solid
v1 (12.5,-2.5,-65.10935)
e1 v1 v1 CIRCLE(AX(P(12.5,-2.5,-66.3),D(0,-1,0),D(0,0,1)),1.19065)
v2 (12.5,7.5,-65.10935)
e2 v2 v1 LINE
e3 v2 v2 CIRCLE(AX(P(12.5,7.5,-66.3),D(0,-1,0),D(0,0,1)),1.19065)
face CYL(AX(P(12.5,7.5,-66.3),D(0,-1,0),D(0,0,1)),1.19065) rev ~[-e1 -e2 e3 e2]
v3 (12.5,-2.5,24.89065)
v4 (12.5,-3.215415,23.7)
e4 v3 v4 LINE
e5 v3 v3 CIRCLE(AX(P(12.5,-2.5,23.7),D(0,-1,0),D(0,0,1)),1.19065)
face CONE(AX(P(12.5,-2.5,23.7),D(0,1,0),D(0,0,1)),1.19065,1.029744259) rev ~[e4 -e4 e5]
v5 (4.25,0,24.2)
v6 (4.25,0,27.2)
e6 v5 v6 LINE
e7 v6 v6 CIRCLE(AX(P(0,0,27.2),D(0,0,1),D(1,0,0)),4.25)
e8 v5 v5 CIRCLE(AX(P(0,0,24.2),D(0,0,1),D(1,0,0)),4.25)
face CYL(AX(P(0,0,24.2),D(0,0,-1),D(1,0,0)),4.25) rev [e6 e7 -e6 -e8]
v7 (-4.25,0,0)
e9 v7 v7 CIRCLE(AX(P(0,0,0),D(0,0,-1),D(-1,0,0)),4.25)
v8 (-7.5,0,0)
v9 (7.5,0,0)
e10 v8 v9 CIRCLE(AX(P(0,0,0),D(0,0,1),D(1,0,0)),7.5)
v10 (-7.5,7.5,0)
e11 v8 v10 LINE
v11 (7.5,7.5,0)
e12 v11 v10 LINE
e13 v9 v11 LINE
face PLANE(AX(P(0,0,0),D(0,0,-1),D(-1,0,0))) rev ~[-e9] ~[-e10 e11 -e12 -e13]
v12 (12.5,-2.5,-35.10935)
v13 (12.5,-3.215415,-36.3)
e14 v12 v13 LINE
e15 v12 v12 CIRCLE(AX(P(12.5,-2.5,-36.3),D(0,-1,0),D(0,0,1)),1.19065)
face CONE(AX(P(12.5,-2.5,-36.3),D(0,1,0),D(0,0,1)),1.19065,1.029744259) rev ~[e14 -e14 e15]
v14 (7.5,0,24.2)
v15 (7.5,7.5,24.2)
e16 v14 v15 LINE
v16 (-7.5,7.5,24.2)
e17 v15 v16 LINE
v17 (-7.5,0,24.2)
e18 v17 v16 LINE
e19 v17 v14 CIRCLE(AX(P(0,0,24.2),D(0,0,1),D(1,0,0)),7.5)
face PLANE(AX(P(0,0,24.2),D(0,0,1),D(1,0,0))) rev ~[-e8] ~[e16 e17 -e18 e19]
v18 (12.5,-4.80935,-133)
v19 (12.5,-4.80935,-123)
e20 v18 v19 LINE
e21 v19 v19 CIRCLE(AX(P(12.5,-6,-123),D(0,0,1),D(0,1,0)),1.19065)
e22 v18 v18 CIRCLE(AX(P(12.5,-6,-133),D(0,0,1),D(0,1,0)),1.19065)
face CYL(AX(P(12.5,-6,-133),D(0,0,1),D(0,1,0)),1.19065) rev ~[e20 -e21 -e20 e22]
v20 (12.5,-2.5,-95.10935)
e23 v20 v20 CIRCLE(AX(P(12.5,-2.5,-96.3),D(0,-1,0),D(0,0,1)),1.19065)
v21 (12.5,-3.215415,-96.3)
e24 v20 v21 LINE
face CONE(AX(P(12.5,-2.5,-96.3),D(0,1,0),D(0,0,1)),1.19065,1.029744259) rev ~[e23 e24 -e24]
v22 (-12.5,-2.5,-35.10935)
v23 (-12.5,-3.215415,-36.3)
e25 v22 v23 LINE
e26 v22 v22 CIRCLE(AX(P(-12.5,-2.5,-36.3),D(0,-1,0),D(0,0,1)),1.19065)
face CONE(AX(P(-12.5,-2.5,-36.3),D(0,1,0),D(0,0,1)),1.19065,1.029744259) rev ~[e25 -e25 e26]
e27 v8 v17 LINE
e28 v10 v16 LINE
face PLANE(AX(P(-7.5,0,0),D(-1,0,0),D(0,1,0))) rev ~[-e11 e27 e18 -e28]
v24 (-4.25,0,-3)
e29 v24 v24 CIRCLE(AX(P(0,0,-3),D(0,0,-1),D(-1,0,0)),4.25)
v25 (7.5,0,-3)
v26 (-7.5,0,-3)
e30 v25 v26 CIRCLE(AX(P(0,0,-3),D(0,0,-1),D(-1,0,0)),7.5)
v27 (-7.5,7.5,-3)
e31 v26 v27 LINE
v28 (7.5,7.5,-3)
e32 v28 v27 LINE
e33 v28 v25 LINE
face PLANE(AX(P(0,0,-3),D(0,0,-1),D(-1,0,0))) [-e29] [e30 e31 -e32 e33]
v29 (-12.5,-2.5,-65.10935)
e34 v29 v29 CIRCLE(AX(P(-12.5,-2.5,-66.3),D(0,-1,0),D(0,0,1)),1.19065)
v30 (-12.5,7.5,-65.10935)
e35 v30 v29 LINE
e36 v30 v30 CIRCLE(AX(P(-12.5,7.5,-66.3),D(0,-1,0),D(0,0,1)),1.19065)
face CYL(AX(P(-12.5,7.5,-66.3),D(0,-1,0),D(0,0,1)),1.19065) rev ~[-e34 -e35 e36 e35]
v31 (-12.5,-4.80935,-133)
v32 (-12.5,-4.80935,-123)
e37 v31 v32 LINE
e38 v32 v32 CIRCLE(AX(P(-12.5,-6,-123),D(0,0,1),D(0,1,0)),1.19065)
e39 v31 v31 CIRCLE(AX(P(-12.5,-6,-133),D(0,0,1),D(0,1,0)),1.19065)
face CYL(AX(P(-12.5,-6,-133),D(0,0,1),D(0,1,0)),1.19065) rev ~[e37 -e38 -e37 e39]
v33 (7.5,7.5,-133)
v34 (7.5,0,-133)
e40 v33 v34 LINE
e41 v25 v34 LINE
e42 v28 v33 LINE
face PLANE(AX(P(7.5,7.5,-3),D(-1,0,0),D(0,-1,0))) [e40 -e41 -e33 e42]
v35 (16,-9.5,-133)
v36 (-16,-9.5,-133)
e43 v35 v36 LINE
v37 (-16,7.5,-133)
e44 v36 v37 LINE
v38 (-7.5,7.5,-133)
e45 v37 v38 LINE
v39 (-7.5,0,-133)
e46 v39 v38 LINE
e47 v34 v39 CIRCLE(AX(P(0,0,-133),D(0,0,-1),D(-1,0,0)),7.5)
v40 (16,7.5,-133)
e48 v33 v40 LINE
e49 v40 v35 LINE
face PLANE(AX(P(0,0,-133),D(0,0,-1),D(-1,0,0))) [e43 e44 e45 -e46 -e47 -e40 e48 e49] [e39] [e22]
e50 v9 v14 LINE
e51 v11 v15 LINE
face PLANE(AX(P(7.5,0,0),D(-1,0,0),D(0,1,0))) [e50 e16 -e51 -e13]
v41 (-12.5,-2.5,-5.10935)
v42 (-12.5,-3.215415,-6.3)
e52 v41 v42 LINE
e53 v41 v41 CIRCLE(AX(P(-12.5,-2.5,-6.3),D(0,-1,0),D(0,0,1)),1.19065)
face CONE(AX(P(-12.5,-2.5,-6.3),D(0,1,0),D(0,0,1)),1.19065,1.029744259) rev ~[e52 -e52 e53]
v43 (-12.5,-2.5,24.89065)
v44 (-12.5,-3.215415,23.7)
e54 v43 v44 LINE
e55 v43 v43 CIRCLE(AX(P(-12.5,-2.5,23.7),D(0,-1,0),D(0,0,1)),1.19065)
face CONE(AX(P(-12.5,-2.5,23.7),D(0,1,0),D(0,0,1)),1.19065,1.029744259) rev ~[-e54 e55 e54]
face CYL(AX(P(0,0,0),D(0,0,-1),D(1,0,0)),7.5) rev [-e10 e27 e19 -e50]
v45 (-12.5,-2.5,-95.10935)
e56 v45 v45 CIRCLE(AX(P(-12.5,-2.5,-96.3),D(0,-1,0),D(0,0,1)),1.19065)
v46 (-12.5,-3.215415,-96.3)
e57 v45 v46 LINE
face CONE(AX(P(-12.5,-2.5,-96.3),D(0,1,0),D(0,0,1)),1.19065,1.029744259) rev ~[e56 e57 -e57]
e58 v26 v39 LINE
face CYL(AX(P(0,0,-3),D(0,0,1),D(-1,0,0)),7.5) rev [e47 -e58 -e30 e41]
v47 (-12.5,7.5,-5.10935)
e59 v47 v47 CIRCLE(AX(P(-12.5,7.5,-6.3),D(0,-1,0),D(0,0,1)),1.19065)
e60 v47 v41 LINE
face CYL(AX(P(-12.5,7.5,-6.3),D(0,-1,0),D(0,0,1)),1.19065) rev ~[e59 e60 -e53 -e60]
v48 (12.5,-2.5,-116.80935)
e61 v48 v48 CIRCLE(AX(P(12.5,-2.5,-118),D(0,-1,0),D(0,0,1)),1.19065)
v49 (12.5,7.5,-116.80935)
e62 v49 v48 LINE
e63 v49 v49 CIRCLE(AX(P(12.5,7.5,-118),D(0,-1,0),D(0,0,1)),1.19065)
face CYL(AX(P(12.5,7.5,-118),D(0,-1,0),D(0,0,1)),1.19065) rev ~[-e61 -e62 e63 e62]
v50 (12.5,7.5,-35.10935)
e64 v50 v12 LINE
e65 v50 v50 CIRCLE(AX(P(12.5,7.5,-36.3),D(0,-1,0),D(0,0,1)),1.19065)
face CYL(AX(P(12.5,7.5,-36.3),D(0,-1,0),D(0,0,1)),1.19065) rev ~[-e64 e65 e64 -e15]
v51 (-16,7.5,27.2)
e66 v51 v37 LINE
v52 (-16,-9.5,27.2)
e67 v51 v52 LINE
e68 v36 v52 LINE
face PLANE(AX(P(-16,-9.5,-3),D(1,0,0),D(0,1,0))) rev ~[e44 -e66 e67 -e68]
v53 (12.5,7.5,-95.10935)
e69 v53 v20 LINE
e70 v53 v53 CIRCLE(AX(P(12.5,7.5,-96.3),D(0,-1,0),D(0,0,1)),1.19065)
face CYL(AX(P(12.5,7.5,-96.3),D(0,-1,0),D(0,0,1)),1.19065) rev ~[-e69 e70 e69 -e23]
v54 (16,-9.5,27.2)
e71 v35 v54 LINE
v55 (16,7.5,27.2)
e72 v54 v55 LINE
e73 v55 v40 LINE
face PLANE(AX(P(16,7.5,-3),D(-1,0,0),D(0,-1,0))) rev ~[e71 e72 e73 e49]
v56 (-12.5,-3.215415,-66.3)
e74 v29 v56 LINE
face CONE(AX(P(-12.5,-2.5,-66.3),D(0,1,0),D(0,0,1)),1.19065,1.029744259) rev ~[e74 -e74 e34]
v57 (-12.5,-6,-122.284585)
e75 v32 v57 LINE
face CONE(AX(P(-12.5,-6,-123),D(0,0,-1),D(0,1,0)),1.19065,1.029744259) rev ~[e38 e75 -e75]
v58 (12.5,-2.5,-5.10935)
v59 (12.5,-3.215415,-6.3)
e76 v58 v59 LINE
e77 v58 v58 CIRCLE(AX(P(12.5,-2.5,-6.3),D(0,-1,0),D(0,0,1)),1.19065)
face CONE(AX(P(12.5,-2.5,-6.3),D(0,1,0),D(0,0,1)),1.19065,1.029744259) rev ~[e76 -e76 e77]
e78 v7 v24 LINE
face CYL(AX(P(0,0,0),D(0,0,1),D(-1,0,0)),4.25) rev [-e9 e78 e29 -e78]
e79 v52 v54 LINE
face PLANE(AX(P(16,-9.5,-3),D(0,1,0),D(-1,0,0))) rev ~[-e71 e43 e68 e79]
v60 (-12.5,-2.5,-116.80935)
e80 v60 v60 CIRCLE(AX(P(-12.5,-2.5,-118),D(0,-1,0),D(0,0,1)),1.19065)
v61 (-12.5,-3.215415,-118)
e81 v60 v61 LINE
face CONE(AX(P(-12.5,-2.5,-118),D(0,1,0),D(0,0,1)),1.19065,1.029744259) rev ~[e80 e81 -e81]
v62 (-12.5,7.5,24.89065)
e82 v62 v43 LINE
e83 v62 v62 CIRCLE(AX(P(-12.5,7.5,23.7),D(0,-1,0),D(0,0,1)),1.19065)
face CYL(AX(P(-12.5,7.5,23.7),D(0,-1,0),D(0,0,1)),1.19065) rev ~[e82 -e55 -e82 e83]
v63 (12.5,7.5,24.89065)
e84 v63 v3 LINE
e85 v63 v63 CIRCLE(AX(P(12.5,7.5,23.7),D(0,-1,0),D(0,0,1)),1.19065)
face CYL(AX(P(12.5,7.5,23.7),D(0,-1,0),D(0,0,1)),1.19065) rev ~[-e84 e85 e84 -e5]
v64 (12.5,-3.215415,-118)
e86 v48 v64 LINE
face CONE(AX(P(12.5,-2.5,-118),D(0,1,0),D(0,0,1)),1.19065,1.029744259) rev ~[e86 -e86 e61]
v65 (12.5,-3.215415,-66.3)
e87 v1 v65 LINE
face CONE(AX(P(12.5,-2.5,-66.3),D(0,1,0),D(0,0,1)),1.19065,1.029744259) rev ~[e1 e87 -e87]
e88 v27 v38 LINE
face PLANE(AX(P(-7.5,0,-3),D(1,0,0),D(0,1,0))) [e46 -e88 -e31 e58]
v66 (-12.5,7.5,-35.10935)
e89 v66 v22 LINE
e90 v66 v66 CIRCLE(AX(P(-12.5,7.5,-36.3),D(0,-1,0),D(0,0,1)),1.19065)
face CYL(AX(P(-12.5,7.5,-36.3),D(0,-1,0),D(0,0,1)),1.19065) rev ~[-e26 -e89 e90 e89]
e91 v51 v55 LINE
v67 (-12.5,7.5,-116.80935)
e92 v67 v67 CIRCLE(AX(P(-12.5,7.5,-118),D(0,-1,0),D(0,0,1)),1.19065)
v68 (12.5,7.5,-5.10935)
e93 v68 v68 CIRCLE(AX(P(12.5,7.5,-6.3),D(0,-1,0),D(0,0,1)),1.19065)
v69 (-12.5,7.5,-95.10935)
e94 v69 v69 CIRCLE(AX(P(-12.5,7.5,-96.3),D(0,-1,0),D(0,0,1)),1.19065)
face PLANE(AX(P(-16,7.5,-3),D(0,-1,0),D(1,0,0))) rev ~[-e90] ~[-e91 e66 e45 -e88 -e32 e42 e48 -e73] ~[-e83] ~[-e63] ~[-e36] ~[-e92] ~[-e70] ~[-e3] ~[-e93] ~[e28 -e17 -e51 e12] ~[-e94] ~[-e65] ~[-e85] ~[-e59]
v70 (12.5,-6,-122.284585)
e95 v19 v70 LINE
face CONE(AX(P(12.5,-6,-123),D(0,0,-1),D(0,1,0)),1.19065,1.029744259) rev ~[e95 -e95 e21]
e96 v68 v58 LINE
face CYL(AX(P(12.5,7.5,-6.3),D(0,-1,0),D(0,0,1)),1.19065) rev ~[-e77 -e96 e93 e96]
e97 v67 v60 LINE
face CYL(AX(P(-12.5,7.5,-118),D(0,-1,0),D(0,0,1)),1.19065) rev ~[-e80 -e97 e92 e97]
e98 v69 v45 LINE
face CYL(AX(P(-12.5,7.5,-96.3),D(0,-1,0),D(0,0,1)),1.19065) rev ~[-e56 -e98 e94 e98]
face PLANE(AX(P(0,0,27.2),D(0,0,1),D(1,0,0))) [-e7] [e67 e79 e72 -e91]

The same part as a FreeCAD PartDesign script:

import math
import FreeCAD as App
import Part
import Sketcher
Q = App.Units.Quantity


def add_polygon(sketch, points):
    """Adds a closed chain of lines whose ends are joined by coincident constraints."""
    first, n = sketch.GeometryCount, len(points)
    for a, b in zip(points, points[1:] + points[:1]):
        sketch.addGeometry(Part.LineSegment(App.Vector(*a, 0), App.Vector(*b, 0)), False)
    for i in range(n):
        sketch.addConstraint(Sketcher.Constraint("Coincident", first + i, 2, first + (i + 1) % n, 1))

doc = App.newDocument("Part")
body = doc.addObject("PartDesign::Body", "Body")

# Sketch on XY plane
sketch1 = doc.addObject("Sketcher::SketchObject", "Sketch")
body.addObject(sketch1)
sketch1.AttachmentSupport = (doc.XY_Plane, [""])
sketch1.MapMode = "FlatFace"
sketch1.addGeometry([
    Part.ArcOfCircle(Part.Circle(App.Vector(0, 0, 0), App.Vector(0, 0, 1), 8), math.radians(180), math.radians(360)),  # 0
    Part.LineSegment(App.Vector(-8, 0, 0), App.Vector(-8, 8, 0)),  # 1
    Part.LineSegment(App.Vector(-8, 8, 0), App.Vector(-16, 8, 0)),  # 2
    Part.LineSegment(App.Vector(-16, 8, 0), App.Vector(-16, -10, 0)),  # 3
    Part.LineSegment(App.Vector(-16, -10, 0), App.Vector(16, -10, 0)),  # 4
    Part.LineSegment(App.Vector(16, -10, 0), App.Vector(16, 8, 0)),  # 5
    Part.LineSegment(App.Vector(16, 8, 0), App.Vector(8, 8, 0)),  # 6
    Part.LineSegment(App.Vector(8, 8, 0), App.Vector(8, 0, 0)),  # 7
], False)
sketch1.addConstraint([
    Sketcher.Constraint("Tangent", 0, 1, 1, 1),
    Sketcher.Constraint("Coincident", 1, 2, 2, 1),
    Sketcher.Constraint("Coincident", 2, 2, 3, 1),
    Sketcher.Constraint("Coincident", 3, 2, 4, 1),
    Sketcher.Constraint("Coincident", 4, 2, 5, 1),
    Sketcher.Constraint("Coincident", 5, 2, 6, 1),
    Sketcher.Constraint("Coincident", 6, 2, 7, 1),
    Sketcher.Constraint("Tangent", 7, 2, 0, 2),
    Sketcher.Constraint("Vertical", 1),
    Sketcher.Constraint("Horizontal", 2),
    Sketcher.Constraint("Vertical", 3),
    Sketcher.Constraint("Horizontal", 4),
    Sketcher.Constraint("Vertical", 5),
    Sketcher.Constraint("Horizontal", 6),
    Sketcher.Constraint("Vertical", 7),
    Sketcher.Constraint("Coincident", 0, 3, -1, 1),
    Sketcher.Constraint("Symmetric", 2, 2, 5, 2, -2),
    Sketcher.Constraint("Radius", 0, Q("7.5 mm")),
    Sketcher.Constraint("DistanceX", 4, 1, 4, 2, Q("32 mm")),
    Sketcher.Constraint("DistanceY", 3, 2, 3, 1, Q("17 mm")),
    Sketcher.Constraint("DistanceY", 1, 1, 1, 2, Q("7.5 mm")),
])
pad1 = doc.addObject("PartDesign::Pad", "Pad")
body.addObject(pad1)
pad1.Profile = sketch1
pad1.Length = 24.2

# Sketch on XY plane
sketch2 = doc.addObject("Sketcher::SketchObject", "Sketch001")
body.addObject(sketch2)
sketch2.AttachmentSupport = (doc.XY_Plane, [""])
sketch2.MapMode = "FlatFace"
sketch2.AttachmentOffset = App.Placement(App.Vector(0, 0, 24.2), App.Rotation())
add_polygon(sketch2, [(-16, 7.5), (-16, -9.5), (16, -9.5), (16, 7.5)])  # lines 0-3
sketch2.addGeometry(Part.Circle(App.Vector(0, 0, 0), App.Vector(0, 0, 1), 4.2), False)  # 4
sketch2.addConstraint([
    Sketcher.Constraint("Vertical", 0),
    Sketcher.Constraint("Horizontal", 1),
    Sketcher.Constraint("Vertical", 2),
    Sketcher.Constraint("Horizontal", 3),
    Sketcher.Constraint("Coincident", 4, 3, -1, 1),
    Sketcher.Constraint("Diameter", 4, Q("8.5 mm")),
    Sketcher.Constraint("DistanceX", 1, 1, 1, 2, Q("32 mm")),
    Sketcher.Constraint("DistanceY", 0, 2, 0, 1, Q("17 mm")),
    Sketcher.Constraint("DistanceX", 0, 2, -1, 1, Q("16 mm")),
    Sketcher.Constraint("DistanceY", 0, 2, -1, 1, Q("9.5 mm")),
])
pad2 = doc.addObject("PartDesign::Pad", "Pad001")
body.addObject(pad2)
pad2.Profile = sketch2
pad2.Length = 3

# Sketch on XY plane
sketch3 = doc.addObject("Sketcher::SketchObject", "Sketch002")
body.addObject(sketch3)
sketch3.AttachmentSupport = (doc.XY_Plane, [""])
sketch3.MapMode = "FlatFace"
add_polygon(sketch3, [(-16, 7.5), (16, 7.5), (16, -9.5), (-16, -9.5)])  # lines 0-3
sketch3.addGeometry(Part.Circle(App.Vector(0, 0, 0), App.Vector(0, 0, 1), 4.2), False)  # 4
sketch3.addConstraint([
    Sketcher.Constraint("Horizontal", 0),
    Sketcher.Constraint("Vertical", 1),
    Sketcher.Constraint("Horizontal", 2),
    Sketcher.Constraint("Vertical", 3),
    Sketcher.Constraint("Coincident", 4, 3, -1, 1),
    Sketcher.Constraint("Diameter", 4, Q("8.5 mm")),
    Sketcher.Constraint("DistanceX", 0, 1, 0, 2, Q("32 mm")),
    Sketcher.Constraint("DistanceY", 1, 2, 1, 1, Q("17 mm")),
    Sketcher.Constraint("DistanceX", -1, 1, 0, 2, Q("16 mm")),
    Sketcher.Constraint("DistanceY", -1, 1, 0, 2, Q("7.5 mm")),
])
pad3 = doc.addObject("PartDesign::Pad", "Pad002")
body.addObject(pad3)
pad3.Profile = sketch3
pad3.Length = 3
pad3.Reversed = True

# Sketch on XY plane
sketch4 = doc.addObject("Sketcher::SketchObject", "Sketch003")
body.addObject(sketch4)
sketch4.AttachmentSupport = (doc.XY_Plane, [""])
sketch4.MapMode = "FlatFace"
sketch4.AttachmentOffset = App.Placement(App.Vector(0, 0, -3), App.Rotation())
sketch4.addGeometry([
    Part.LineSegment(App.Vector(-16, -10, 0), App.Vector(-16, 8, 0)),  # 0
    Part.LineSegment(App.Vector(-16, 8, 0), App.Vector(-8, 8, 0)),  # 1
    Part.LineSegment(App.Vector(-8, 8, 0), App.Vector(-8, 0, 0)),  # 2
    Part.ArcOfCircle(Part.Circle(App.Vector(0, 0, 0), App.Vector(0, 0, 1), 8), math.radians(180), math.radians(360)),  # 3
    Part.LineSegment(App.Vector(8, 0, 0), App.Vector(8, 8, 0)),  # 4
    Part.LineSegment(App.Vector(8, 8, 0), App.Vector(16, 8, 0)),  # 5
    Part.LineSegment(App.Vector(16, 8, 0), App.Vector(16, -10, 0)),  # 6
    Part.LineSegment(App.Vector(16, -10, 0), App.Vector(-16, -10, 0)),  # 7
], False)
sketch4.addConstraint([
    Sketcher.Constraint("Coincident", 0, 2, 1, 1),
    Sketcher.Constraint("Coincident", 1, 2, 2, 1),
    Sketcher.Constraint("Tangent", 2, 2, 3, 1),
    Sketcher.Constraint("Tangent", 3, 2, 4, 1),
    Sketcher.Constraint("Coincident", 4, 2, 5, 1),
    Sketcher.Constraint("Coincident", 5, 2, 6, 1),
    Sketcher.Constraint("Coincident", 6, 2, 7, 1),
    Sketcher.Constraint("Coincident", 7, 2, 0, 1),
    Sketcher.Constraint("Vertical", 0),
    Sketcher.Constraint("Horizontal", 1),
    Sketcher.Constraint("Vertical", 2),
    Sketcher.Constraint("Vertical", 4),
    Sketcher.Constraint("Horizontal", 5),
    Sketcher.Constraint("Vertical", 6),
    Sketcher.Constraint("Horizontal", 7),
    Sketcher.Constraint("Coincident", 3, 3, -1, 1),
    Sketcher.Constraint("Symmetric", 0, 2, 5, 2, -2),
    Sketcher.Constraint("Radius", 3, Q("7.5 mm")),
    Sketcher.Constraint("DistanceX", 7, 2, 7, 1, Q("32 mm")),
    Sketcher.Constraint("DistanceY", 0, 1, 0, 2, Q("17 mm")),
    Sketcher.Constraint("DistanceY", 2, 2, 2, 1, Q("7.5 mm")),
])
pad4 = doc.addObject("PartDesign::Pad", "Pad003")
body.addObject(pad4)
pad4.Profile = sketch4
pad4.Length = 130
pad4.Reversed = True

# Sketch on XY plane
sketch5 = doc.addObject("Sketcher::SketchObject", "Sketch004")
body.addObject(sketch5)
sketch5.AttachmentSupport = (doc.XY_Plane, [""])
sketch5.MapMode = "FlatFace"
sketch5.AttachmentOffset = App.Placement(App.Vector(0, 0, -133), App.Rotation())
sketch5.addGeometry([
    Part.Circle(App.Vector(12.5, -6, 0), App.Vector(0, 0, 1), 1.2),
    Part.Circle(App.Vector(-12.5, -6, 0), App.Vector(0, 0, 1), 1.2),
], False)
sketch5.addConstraint([
    Sketcher.Constraint("Equal", 0, 1),
    Sketcher.Constraint("Symmetric", 0, 3, 1, 3, -2),
    Sketcher.Constraint("DistanceY", 0, 3, -1, 1, Q("6 mm")),
    Sketcher.Constraint("DistanceX", 1, 3, 0, 3, Q("25 mm")),
    Sketcher.Constraint("Diameter", 0, Q("2.3813 mm")),
])
doc.recompute()
hole = doc.addObject("PartDesign::Hole", "Hole")
body.addObject(hole)
hole.Profile = sketch5
hole.ThreadType = "None"
hole.Diameter = 2.3813
hole.DepthType = "Dimension"
hole.Depth = 10
hole.DrillPoint = "Angled"
hole.DrillPointAngle = 118
hole.Reversed = True

# Sketch on XZ plane
sketch6 = doc.addObject("Sketcher::SketchObject", "Sketch005")
body.addObject(sketch6)
sketch6.AttachmentSupport = (doc.XZ_Plane, [""])
sketch6.MapMode = "FlatFace"
sketch6.AttachmentOffset = App.Placement(App.Vector(0, 0, -7.5), App.Rotation())
sketch6.addGeometry([
    Part.Circle(App.Vector(-12.5, 23.7, 0), App.Vector(0, 0, 1), 1.2),  # 0
    Part.Circle(App.Vector(-12.5, -6.3, 0), App.Vector(0, 0, 1), 1.2),  # 1
    Part.Circle(App.Vector(-12.5, -36.3, 0), App.Vector(0, 0, 1), 1.2),  # 2
    Part.Circle(App.Vector(-12.5, -66.3, 0), App.Vector(0, 0, 1), 1.2),  # 3
    Part.Circle(App.Vector(-12.5, -96.3, 0), App.Vector(0, 0, 1), 1.2),  # 4
    Part.Circle(App.Vector(-12.5, -118, 0), App.Vector(0, 0, 1), 1.2),  # 5
    Part.Circle(App.Vector(12.5, 23.7, 0), App.Vector(0, 0, 1), 1.2),  # 6
    Part.Circle(App.Vector(12.5, -6.3, 0), App.Vector(0, 0, 1), 1.2),  # 7
    Part.Circle(App.Vector(12.5, -36.3, 0), App.Vector(0, 0, 1), 1.2),  # 8
    Part.Circle(App.Vector(12.5, -66.3, 0), App.Vector(0, 0, 1), 1.2),  # 9
    Part.Circle(App.Vector(12.5, -96.3, 0), App.Vector(0, 0, 1), 1.2),  # 10
    Part.Circle(App.Vector(12.5, -118, 0), App.Vector(0, 0, 1), 1.2),  # 11
], False)
sketch6.addConstraint([
    Sketcher.Constraint("Equal", 0, 1),
    Sketcher.Constraint("Equal", 1, 2),
    Sketcher.Constraint("Equal", 2, 3),
    Sketcher.Constraint("Equal", 3, 4),
    Sketcher.Constraint("Equal", 4, 5),
    Sketcher.Constraint("Equal", 5, 6),
    Sketcher.Constraint("Equal", 6, 7),
    Sketcher.Constraint("Equal", 7, 8),
    Sketcher.Constraint("Equal", 8, 9),
    Sketcher.Constraint("Equal", 9, 10),
    Sketcher.Constraint("Equal", 10, 11),
    Sketcher.Constraint("Symmetric", 0, 3, 6, 3, -2),
    Sketcher.Constraint("Symmetric", 1, 3, 7, 3, -2),
    Sketcher.Constraint("Symmetric", 2, 3, 8, 3, -2),
    Sketcher.Constraint("Symmetric", 3, 3, 9, 3, -2),
    Sketcher.Constraint("Symmetric", 4, 3, 10, 3, -2),
    Sketcher.Constraint("Symmetric", 5, 3, 11, 3, -2),
    Sketcher.Constraint("Vertical", 0, 3, 1, 3),
    Sketcher.Constraint("Vertical", 1, 3, 2, 3),
    Sketcher.Constraint("Vertical", 2, 3, 3, 3),
    Sketcher.Constraint("Vertical", 3, 3, 4, 3),
    Sketcher.Constraint("Vertical", 4, 3, 5, 3),
    Sketcher.Constraint("DistanceY", 5, 3, -1, 1, Q("118 mm")),
    Sketcher.Constraint("DistanceY", 1, 3, 0, 3, Q("30 mm")),
    Sketcher.Constraint("DistanceY", 2, 3, 1, 3, Q("30 mm")),
    Sketcher.Constraint("DistanceY", 3, 3, 2, 3, Q("30 mm")),
    Sketcher.Constraint("DistanceY", 4, 3, 3, 3, Q("30 mm")),
    Sketcher.Constraint("DistanceX", 0, 3, 6, 3, Q("25 mm")),
    Sketcher.Constraint("Diameter", 0, Q("2.3813 mm")),
    Sketcher.Constraint("DistanceY", -1, 1, 0, 3, Q("23.7 mm")),
])
doc.recompute()
hole2 = doc.addObject("PartDesign::Hole", "Hole001")
body.addObject(hole2)
hole2.Profile = sketch6
hole2.ThreadType = "None"
hole2.Diameter = 2.3813
hole2.DepthType = "Dimension"
hole2.Depth = 10
hole2.DrillPoint = "Angled"
hole2.DrillPointAngle = 118
hole2.Reversed = True

doc.recompute()
